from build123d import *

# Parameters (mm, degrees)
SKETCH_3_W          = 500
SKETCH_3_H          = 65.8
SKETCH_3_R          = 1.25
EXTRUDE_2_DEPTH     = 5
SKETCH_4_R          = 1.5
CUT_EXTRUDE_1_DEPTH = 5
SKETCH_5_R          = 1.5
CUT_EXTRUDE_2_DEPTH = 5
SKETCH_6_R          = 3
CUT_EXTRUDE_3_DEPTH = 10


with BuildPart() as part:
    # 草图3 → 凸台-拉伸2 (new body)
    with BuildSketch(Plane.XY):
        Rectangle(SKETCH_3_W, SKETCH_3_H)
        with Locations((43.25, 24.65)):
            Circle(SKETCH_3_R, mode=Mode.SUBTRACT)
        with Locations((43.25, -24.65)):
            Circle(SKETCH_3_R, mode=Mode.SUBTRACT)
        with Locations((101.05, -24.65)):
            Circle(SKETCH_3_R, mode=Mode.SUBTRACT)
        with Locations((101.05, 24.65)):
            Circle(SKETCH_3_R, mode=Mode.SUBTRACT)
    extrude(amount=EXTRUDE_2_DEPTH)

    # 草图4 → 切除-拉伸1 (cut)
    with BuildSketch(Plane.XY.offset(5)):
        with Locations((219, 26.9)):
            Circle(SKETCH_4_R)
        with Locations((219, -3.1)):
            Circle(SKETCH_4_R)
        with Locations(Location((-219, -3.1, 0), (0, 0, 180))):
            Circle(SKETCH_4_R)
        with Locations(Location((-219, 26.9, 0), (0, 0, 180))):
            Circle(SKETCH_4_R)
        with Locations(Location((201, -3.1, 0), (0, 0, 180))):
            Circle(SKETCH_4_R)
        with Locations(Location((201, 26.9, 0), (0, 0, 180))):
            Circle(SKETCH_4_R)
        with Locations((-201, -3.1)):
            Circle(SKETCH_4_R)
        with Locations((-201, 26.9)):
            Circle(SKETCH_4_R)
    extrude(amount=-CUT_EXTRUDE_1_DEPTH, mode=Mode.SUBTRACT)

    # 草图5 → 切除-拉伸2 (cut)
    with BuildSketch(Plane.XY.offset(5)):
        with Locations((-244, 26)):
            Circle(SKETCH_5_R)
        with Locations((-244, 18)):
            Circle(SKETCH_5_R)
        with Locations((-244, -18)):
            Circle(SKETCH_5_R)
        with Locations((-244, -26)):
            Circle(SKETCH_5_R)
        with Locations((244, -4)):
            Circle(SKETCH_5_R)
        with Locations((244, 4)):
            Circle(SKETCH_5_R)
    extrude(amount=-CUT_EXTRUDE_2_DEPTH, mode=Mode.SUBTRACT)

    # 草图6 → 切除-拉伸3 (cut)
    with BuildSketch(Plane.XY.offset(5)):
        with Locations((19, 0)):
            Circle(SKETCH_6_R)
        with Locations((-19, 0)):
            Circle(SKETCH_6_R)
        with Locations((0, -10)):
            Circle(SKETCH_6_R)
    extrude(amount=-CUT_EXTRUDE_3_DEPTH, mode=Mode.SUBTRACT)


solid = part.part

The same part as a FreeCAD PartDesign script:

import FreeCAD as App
import Part
import Sketcher

V = App.Vector

doc = App.newDocument("Part")
body = doc.addObject("PartDesign::Body", "Body")

# Sketch on XY plane
sketch1 = body.newObject("Sketcher::SketchObject", "Sketch")
sketch1.AttachmentSupport = (doc.getObject("XY_Plane"), [""])
sketch1.MapMode = "FlatFace"
sketch1.addGeometry([
    Part.LineSegment(V(-250, 32.9, 0), V(-250, -32.9, 0)),  # 0
    Part.LineSegment(V(-250, -32.9, 0), V(250, -32.9, 0)),  # 1
    Part.LineSegment(V(250, -32.9, 0), V(250, 32.9, 0)),  # 2
    Part.LineSegment(V(250, 32.9, 0), V(-250, 32.9, 0)),  # 3
    Part.Circle(V(43.25, -24.65, 0), V(0, 0, 1), 1.25),  # 4
    Part.Circle(V(101.05, -24.65, 0), V(0, 0, 1), 1.25),  # 5
    Part.Circle(V(43.25, 24.65, 0), V(0, 0, 1), 1.25),  # 6
    Part.Circle(V(101.05, 24.65, 0), V(0, 0, 1), 1.25),  # 7
], False)
sketch1.addConstraint([
    Sketcher.Constraint("Coincident", 0, 2, 1, 1),
    Sketcher.Constraint("Coincident", 1, 2, 2, 1),
    Sketcher.Constraint("Coincident", 2, 2, 3, 1),
    Sketcher.Constraint("Coincident", 3, 2, 0, 1),
    Sketcher.Constraint("Vertical", 0),
    Sketcher.Constraint("Horizontal", 1),
    Sketcher.Constraint("Vertical", 2),
    Sketcher.Constraint("Horizontal", 3),
    Sketcher.Constraint("Equal", 4, 5),
    Sketcher.Constraint("Equal", 5, 6),
    Sketcher.Constraint("Equal", 6, 7),
    Sketcher.Constraint("Symmetric", 0, 2, 2, 2, -1, 1),
    Sketcher.Constraint("Symmetric", 4, 3, 6, 3, -1),
    Sketcher.Constraint("Symmetric", 5, 3, 7, 3, -1),
    Sketcher.Constraint("Horizontal", 4, 3, 5, 3),
    Sketcher.Constraint("Diameter", 4, 2.5),
    Sketcher.Constraint("DistanceX", 1, 1, 1, 2, 500.0),
    Sketcher.Constraint("DistanceY", 0, 2, 0, 1, 65.8),
    Sketcher.Constraint("DistanceX", 4, 3, 5, 3, 57.8),
    Sketcher.Constraint("DistanceY", 4, 3, 6, 3, 49.3),
    Sketcher.Constraint("DistanceX", -1, 1, 4, 3, 43.25),
])
pad1 = body.newObject("PartDesign::Pad", "Pad")
pad1.Profile = sketch1
pad1.Length = 5

# Sketch on XY plane
sketch2 = body.newObject("Sketcher::SketchObject", "Sketch001")
sketch2.AttachmentSupport = (doc.getObject("XY_Plane"), [""])
sketch2.MapMode = "FlatFace"
sketch2.AttachmentOffset = App.Placement(V(0, 0, 5), App.Rotation())
sketch2.addGeometry([
    Part.Circle(V(219, 26.9, 0), V(0, 0, 1), 1.5),  # 0
    Part.Circle(V(219, -3.1, 0), V(0, 0, 1), 1.5),  # 1
    Part.Circle(V(-219, -3.1, 0), V(0, 0, 1), 1.5),  # 2
    Part.Circle(V(-219, 26.9, 0), V(0, 0, 1), 1.5),  # 3
    Part.Circle(V(201, -3.1, 0), V(0, 0, 1), 1.5),  # 4
    Part.Circle(V(201, 26.9, 0), V(0, 0, 1), 1.5),  # 5
    Part.Circle(V(-201, -3.1, 0), V(0, 0, 1), 1.5),  # 6
    Part.Circle(V(-201, 26.9, 0), V(0, 0, 1), 1.5),  # 7
], False)
sketch2.addConstraint([
    Sketcher.Constraint("Equal", 0, 1),
    Sketcher.Constraint("Equal", 1, 2),
    Sketcher.Constraint("Equal", 2, 3),
    Sketcher.Constraint("Equal", 3, 4),
    Sketcher.Constraint("Equal", 4, 5),
    Sketcher.Constraint("Equal", 5, 6),
    Sketcher.Constraint("Equal", 6, 7),
    Sketcher.Constraint("Symmetric", 1, 3, 2, 3, -2),
    Sketcher.Constraint("Symmetric", 0, 3, 3, 3, -2),
    Sketcher.Constraint("Symmetric", 4, 3, 6, 3, -2),
    Sketcher.Constraint("Symmetric", 5, 3, 7, 3, -2),
    Sketcher.Constraint("Horizontal", 2, 3, 4, 3),
    Sketcher.Constraint("Horizontal", 3, 3, 5, 3),
    Sketcher.Constraint("Vertical", 0, 3, 1, 3),
    Sketcher.Constraint("Vertical", 4, 3, 5, 3),
    Sketcher.Constraint("Diameter", 0, 3.0),
    Sketcher.Constraint("DistanceX", -1, 1, 0, 3, 219.0),
    Sketcher.Constraint("DistanceX", -1, 1, 4, 3, 201.0),
    Sketcher.Constraint("DistanceY", 1, 3, 0, 3, 30.0),
    Sketcher.Constraint("DistanceY", -1, 1, 0, 3, 26.9),
])
pocket1 = body.newObject("PartDesign::Pocket", "Pocket")
pocket1.Profile = sketch2
pocket1.Length = 5

# Sketch on XY plane
sketch3 = body.newObject("Sketcher::SketchObject", "Sketch002")
sketch3.AttachmentSupport = (doc.getObject("XY_Plane"), [""])
sketch3.MapMode = "FlatFace"
sketch3.AttachmentOffset = App.Placement(V(0, 0, 5), App.Rotation())
sketch3.addGeometry([
    Part.Circle(V(-244, 26, 0), V(0, 0, 1), 1.5),  # 0
    Part.Circle(V(-244, 18, 0), V(0, 0, 1), 1.5),  # 1
    Part.Circle(V(-244, -18, 0), V(0, 0, 1), 1.5),  # 2
    Part.Circle(V(-244, -26, 0), V(0, 0, 1), 1.5),  # 3
    Part.Circle(V(244, -4, 0), V(0, 0, 1), 1.5),  # 4
    Part.Circle(V(244, 4, 0), V(0, 0, 1), 1.5),  # 5
], False)
sketch3.addConstraint([
    Sketcher.Constraint("Equal", 0, 1),
    Sketcher.Constraint("Equal", 1, 2),
    Sketcher.Constraint("Equal", 2, 3),
    Sketcher.Constraint("Equal", 3, 4),
    Sketcher.Constraint("Equal", 4, 5),
    Sketcher.Constraint("Symmetric", 1, 3, 2, 3, -1),
    Sketcher.Constraint("Symmetric", 0, 3, 3, 3, -1),
    Sketcher.Constraint("Symmetric", 4, 3, 5, 3, -1),
    Sketcher.Constraint("Vertical", 0, 3, 1, 3),
    Sketcher.Constraint("Diameter", 0, 3.0),
    Sketcher.Constraint("DistanceX", 0, 3, -1, 1, 244.0),
    Sketcher.Constraint("DistanceY", -1, 1, 0, 3, 26.0),
    Sketcher.Constraint("DistanceY", -1, 1, 1, 3, 18.0),
    Sketcher.Constraint("DistanceX", -1, 1, 4, 3, 244.0),
    Sketcher.Constraint("DistanceY", 4, 3, -1, 1, 4.0),
])
pocket2 = body.newObject("PartDesign::Pocket", "Pocket001")
pocket2.Profile = sketch3
pocket2.Length = 5

# Sketch on XY plane
sketch4 = body.newObject("Sketcher::SketchObject", "Sketch003")
sketch4.AttachmentSupport = (doc.getObject("XY_Plane"), [""])
sketch4.MapMode = "FlatFace"
sketch4.AttachmentOffset = App.Placement(V(0, 0, 5), App.Rotation())
sketch4.addGeometry([
    Part.Circle(V(19, 0, 0), V(0, 0, 1), 3),
    Part.Circle(V(-19, 0, 0), V(0, 0, 1), 3),
    Part.Circle(V(0, -10, 0), V(0, 0, 1), 3),
], False)
sketch4.addConstraint([
    Sketcher.Constraint("Equal", 0, 1),
    Sketcher.Constraint("Equal", 1, 2),
    Sketcher.Constraint("Symmetric", 0, 3, 1, 3, -1, 1),
    Sketcher.Constraint("PointOnObject", 0, 3, -1),
    Sketcher.Constraint("PointOnObject", 2, 3, -2),
    Sketcher.Constraint("Diameter", 0, 6.0),
    Sketcher.Constraint("DistanceX", -1, 1, 0, 3, 19.0),
    Sketcher.Constraint("DistanceY", 2, 3, -1, 1, 10.0),
])
pocket3 = body.newObject("PartDesign::Pocket", "Pocket002")
pocket3.Profile = sketch4
pocket3.Length = 10

doc.recompute()
